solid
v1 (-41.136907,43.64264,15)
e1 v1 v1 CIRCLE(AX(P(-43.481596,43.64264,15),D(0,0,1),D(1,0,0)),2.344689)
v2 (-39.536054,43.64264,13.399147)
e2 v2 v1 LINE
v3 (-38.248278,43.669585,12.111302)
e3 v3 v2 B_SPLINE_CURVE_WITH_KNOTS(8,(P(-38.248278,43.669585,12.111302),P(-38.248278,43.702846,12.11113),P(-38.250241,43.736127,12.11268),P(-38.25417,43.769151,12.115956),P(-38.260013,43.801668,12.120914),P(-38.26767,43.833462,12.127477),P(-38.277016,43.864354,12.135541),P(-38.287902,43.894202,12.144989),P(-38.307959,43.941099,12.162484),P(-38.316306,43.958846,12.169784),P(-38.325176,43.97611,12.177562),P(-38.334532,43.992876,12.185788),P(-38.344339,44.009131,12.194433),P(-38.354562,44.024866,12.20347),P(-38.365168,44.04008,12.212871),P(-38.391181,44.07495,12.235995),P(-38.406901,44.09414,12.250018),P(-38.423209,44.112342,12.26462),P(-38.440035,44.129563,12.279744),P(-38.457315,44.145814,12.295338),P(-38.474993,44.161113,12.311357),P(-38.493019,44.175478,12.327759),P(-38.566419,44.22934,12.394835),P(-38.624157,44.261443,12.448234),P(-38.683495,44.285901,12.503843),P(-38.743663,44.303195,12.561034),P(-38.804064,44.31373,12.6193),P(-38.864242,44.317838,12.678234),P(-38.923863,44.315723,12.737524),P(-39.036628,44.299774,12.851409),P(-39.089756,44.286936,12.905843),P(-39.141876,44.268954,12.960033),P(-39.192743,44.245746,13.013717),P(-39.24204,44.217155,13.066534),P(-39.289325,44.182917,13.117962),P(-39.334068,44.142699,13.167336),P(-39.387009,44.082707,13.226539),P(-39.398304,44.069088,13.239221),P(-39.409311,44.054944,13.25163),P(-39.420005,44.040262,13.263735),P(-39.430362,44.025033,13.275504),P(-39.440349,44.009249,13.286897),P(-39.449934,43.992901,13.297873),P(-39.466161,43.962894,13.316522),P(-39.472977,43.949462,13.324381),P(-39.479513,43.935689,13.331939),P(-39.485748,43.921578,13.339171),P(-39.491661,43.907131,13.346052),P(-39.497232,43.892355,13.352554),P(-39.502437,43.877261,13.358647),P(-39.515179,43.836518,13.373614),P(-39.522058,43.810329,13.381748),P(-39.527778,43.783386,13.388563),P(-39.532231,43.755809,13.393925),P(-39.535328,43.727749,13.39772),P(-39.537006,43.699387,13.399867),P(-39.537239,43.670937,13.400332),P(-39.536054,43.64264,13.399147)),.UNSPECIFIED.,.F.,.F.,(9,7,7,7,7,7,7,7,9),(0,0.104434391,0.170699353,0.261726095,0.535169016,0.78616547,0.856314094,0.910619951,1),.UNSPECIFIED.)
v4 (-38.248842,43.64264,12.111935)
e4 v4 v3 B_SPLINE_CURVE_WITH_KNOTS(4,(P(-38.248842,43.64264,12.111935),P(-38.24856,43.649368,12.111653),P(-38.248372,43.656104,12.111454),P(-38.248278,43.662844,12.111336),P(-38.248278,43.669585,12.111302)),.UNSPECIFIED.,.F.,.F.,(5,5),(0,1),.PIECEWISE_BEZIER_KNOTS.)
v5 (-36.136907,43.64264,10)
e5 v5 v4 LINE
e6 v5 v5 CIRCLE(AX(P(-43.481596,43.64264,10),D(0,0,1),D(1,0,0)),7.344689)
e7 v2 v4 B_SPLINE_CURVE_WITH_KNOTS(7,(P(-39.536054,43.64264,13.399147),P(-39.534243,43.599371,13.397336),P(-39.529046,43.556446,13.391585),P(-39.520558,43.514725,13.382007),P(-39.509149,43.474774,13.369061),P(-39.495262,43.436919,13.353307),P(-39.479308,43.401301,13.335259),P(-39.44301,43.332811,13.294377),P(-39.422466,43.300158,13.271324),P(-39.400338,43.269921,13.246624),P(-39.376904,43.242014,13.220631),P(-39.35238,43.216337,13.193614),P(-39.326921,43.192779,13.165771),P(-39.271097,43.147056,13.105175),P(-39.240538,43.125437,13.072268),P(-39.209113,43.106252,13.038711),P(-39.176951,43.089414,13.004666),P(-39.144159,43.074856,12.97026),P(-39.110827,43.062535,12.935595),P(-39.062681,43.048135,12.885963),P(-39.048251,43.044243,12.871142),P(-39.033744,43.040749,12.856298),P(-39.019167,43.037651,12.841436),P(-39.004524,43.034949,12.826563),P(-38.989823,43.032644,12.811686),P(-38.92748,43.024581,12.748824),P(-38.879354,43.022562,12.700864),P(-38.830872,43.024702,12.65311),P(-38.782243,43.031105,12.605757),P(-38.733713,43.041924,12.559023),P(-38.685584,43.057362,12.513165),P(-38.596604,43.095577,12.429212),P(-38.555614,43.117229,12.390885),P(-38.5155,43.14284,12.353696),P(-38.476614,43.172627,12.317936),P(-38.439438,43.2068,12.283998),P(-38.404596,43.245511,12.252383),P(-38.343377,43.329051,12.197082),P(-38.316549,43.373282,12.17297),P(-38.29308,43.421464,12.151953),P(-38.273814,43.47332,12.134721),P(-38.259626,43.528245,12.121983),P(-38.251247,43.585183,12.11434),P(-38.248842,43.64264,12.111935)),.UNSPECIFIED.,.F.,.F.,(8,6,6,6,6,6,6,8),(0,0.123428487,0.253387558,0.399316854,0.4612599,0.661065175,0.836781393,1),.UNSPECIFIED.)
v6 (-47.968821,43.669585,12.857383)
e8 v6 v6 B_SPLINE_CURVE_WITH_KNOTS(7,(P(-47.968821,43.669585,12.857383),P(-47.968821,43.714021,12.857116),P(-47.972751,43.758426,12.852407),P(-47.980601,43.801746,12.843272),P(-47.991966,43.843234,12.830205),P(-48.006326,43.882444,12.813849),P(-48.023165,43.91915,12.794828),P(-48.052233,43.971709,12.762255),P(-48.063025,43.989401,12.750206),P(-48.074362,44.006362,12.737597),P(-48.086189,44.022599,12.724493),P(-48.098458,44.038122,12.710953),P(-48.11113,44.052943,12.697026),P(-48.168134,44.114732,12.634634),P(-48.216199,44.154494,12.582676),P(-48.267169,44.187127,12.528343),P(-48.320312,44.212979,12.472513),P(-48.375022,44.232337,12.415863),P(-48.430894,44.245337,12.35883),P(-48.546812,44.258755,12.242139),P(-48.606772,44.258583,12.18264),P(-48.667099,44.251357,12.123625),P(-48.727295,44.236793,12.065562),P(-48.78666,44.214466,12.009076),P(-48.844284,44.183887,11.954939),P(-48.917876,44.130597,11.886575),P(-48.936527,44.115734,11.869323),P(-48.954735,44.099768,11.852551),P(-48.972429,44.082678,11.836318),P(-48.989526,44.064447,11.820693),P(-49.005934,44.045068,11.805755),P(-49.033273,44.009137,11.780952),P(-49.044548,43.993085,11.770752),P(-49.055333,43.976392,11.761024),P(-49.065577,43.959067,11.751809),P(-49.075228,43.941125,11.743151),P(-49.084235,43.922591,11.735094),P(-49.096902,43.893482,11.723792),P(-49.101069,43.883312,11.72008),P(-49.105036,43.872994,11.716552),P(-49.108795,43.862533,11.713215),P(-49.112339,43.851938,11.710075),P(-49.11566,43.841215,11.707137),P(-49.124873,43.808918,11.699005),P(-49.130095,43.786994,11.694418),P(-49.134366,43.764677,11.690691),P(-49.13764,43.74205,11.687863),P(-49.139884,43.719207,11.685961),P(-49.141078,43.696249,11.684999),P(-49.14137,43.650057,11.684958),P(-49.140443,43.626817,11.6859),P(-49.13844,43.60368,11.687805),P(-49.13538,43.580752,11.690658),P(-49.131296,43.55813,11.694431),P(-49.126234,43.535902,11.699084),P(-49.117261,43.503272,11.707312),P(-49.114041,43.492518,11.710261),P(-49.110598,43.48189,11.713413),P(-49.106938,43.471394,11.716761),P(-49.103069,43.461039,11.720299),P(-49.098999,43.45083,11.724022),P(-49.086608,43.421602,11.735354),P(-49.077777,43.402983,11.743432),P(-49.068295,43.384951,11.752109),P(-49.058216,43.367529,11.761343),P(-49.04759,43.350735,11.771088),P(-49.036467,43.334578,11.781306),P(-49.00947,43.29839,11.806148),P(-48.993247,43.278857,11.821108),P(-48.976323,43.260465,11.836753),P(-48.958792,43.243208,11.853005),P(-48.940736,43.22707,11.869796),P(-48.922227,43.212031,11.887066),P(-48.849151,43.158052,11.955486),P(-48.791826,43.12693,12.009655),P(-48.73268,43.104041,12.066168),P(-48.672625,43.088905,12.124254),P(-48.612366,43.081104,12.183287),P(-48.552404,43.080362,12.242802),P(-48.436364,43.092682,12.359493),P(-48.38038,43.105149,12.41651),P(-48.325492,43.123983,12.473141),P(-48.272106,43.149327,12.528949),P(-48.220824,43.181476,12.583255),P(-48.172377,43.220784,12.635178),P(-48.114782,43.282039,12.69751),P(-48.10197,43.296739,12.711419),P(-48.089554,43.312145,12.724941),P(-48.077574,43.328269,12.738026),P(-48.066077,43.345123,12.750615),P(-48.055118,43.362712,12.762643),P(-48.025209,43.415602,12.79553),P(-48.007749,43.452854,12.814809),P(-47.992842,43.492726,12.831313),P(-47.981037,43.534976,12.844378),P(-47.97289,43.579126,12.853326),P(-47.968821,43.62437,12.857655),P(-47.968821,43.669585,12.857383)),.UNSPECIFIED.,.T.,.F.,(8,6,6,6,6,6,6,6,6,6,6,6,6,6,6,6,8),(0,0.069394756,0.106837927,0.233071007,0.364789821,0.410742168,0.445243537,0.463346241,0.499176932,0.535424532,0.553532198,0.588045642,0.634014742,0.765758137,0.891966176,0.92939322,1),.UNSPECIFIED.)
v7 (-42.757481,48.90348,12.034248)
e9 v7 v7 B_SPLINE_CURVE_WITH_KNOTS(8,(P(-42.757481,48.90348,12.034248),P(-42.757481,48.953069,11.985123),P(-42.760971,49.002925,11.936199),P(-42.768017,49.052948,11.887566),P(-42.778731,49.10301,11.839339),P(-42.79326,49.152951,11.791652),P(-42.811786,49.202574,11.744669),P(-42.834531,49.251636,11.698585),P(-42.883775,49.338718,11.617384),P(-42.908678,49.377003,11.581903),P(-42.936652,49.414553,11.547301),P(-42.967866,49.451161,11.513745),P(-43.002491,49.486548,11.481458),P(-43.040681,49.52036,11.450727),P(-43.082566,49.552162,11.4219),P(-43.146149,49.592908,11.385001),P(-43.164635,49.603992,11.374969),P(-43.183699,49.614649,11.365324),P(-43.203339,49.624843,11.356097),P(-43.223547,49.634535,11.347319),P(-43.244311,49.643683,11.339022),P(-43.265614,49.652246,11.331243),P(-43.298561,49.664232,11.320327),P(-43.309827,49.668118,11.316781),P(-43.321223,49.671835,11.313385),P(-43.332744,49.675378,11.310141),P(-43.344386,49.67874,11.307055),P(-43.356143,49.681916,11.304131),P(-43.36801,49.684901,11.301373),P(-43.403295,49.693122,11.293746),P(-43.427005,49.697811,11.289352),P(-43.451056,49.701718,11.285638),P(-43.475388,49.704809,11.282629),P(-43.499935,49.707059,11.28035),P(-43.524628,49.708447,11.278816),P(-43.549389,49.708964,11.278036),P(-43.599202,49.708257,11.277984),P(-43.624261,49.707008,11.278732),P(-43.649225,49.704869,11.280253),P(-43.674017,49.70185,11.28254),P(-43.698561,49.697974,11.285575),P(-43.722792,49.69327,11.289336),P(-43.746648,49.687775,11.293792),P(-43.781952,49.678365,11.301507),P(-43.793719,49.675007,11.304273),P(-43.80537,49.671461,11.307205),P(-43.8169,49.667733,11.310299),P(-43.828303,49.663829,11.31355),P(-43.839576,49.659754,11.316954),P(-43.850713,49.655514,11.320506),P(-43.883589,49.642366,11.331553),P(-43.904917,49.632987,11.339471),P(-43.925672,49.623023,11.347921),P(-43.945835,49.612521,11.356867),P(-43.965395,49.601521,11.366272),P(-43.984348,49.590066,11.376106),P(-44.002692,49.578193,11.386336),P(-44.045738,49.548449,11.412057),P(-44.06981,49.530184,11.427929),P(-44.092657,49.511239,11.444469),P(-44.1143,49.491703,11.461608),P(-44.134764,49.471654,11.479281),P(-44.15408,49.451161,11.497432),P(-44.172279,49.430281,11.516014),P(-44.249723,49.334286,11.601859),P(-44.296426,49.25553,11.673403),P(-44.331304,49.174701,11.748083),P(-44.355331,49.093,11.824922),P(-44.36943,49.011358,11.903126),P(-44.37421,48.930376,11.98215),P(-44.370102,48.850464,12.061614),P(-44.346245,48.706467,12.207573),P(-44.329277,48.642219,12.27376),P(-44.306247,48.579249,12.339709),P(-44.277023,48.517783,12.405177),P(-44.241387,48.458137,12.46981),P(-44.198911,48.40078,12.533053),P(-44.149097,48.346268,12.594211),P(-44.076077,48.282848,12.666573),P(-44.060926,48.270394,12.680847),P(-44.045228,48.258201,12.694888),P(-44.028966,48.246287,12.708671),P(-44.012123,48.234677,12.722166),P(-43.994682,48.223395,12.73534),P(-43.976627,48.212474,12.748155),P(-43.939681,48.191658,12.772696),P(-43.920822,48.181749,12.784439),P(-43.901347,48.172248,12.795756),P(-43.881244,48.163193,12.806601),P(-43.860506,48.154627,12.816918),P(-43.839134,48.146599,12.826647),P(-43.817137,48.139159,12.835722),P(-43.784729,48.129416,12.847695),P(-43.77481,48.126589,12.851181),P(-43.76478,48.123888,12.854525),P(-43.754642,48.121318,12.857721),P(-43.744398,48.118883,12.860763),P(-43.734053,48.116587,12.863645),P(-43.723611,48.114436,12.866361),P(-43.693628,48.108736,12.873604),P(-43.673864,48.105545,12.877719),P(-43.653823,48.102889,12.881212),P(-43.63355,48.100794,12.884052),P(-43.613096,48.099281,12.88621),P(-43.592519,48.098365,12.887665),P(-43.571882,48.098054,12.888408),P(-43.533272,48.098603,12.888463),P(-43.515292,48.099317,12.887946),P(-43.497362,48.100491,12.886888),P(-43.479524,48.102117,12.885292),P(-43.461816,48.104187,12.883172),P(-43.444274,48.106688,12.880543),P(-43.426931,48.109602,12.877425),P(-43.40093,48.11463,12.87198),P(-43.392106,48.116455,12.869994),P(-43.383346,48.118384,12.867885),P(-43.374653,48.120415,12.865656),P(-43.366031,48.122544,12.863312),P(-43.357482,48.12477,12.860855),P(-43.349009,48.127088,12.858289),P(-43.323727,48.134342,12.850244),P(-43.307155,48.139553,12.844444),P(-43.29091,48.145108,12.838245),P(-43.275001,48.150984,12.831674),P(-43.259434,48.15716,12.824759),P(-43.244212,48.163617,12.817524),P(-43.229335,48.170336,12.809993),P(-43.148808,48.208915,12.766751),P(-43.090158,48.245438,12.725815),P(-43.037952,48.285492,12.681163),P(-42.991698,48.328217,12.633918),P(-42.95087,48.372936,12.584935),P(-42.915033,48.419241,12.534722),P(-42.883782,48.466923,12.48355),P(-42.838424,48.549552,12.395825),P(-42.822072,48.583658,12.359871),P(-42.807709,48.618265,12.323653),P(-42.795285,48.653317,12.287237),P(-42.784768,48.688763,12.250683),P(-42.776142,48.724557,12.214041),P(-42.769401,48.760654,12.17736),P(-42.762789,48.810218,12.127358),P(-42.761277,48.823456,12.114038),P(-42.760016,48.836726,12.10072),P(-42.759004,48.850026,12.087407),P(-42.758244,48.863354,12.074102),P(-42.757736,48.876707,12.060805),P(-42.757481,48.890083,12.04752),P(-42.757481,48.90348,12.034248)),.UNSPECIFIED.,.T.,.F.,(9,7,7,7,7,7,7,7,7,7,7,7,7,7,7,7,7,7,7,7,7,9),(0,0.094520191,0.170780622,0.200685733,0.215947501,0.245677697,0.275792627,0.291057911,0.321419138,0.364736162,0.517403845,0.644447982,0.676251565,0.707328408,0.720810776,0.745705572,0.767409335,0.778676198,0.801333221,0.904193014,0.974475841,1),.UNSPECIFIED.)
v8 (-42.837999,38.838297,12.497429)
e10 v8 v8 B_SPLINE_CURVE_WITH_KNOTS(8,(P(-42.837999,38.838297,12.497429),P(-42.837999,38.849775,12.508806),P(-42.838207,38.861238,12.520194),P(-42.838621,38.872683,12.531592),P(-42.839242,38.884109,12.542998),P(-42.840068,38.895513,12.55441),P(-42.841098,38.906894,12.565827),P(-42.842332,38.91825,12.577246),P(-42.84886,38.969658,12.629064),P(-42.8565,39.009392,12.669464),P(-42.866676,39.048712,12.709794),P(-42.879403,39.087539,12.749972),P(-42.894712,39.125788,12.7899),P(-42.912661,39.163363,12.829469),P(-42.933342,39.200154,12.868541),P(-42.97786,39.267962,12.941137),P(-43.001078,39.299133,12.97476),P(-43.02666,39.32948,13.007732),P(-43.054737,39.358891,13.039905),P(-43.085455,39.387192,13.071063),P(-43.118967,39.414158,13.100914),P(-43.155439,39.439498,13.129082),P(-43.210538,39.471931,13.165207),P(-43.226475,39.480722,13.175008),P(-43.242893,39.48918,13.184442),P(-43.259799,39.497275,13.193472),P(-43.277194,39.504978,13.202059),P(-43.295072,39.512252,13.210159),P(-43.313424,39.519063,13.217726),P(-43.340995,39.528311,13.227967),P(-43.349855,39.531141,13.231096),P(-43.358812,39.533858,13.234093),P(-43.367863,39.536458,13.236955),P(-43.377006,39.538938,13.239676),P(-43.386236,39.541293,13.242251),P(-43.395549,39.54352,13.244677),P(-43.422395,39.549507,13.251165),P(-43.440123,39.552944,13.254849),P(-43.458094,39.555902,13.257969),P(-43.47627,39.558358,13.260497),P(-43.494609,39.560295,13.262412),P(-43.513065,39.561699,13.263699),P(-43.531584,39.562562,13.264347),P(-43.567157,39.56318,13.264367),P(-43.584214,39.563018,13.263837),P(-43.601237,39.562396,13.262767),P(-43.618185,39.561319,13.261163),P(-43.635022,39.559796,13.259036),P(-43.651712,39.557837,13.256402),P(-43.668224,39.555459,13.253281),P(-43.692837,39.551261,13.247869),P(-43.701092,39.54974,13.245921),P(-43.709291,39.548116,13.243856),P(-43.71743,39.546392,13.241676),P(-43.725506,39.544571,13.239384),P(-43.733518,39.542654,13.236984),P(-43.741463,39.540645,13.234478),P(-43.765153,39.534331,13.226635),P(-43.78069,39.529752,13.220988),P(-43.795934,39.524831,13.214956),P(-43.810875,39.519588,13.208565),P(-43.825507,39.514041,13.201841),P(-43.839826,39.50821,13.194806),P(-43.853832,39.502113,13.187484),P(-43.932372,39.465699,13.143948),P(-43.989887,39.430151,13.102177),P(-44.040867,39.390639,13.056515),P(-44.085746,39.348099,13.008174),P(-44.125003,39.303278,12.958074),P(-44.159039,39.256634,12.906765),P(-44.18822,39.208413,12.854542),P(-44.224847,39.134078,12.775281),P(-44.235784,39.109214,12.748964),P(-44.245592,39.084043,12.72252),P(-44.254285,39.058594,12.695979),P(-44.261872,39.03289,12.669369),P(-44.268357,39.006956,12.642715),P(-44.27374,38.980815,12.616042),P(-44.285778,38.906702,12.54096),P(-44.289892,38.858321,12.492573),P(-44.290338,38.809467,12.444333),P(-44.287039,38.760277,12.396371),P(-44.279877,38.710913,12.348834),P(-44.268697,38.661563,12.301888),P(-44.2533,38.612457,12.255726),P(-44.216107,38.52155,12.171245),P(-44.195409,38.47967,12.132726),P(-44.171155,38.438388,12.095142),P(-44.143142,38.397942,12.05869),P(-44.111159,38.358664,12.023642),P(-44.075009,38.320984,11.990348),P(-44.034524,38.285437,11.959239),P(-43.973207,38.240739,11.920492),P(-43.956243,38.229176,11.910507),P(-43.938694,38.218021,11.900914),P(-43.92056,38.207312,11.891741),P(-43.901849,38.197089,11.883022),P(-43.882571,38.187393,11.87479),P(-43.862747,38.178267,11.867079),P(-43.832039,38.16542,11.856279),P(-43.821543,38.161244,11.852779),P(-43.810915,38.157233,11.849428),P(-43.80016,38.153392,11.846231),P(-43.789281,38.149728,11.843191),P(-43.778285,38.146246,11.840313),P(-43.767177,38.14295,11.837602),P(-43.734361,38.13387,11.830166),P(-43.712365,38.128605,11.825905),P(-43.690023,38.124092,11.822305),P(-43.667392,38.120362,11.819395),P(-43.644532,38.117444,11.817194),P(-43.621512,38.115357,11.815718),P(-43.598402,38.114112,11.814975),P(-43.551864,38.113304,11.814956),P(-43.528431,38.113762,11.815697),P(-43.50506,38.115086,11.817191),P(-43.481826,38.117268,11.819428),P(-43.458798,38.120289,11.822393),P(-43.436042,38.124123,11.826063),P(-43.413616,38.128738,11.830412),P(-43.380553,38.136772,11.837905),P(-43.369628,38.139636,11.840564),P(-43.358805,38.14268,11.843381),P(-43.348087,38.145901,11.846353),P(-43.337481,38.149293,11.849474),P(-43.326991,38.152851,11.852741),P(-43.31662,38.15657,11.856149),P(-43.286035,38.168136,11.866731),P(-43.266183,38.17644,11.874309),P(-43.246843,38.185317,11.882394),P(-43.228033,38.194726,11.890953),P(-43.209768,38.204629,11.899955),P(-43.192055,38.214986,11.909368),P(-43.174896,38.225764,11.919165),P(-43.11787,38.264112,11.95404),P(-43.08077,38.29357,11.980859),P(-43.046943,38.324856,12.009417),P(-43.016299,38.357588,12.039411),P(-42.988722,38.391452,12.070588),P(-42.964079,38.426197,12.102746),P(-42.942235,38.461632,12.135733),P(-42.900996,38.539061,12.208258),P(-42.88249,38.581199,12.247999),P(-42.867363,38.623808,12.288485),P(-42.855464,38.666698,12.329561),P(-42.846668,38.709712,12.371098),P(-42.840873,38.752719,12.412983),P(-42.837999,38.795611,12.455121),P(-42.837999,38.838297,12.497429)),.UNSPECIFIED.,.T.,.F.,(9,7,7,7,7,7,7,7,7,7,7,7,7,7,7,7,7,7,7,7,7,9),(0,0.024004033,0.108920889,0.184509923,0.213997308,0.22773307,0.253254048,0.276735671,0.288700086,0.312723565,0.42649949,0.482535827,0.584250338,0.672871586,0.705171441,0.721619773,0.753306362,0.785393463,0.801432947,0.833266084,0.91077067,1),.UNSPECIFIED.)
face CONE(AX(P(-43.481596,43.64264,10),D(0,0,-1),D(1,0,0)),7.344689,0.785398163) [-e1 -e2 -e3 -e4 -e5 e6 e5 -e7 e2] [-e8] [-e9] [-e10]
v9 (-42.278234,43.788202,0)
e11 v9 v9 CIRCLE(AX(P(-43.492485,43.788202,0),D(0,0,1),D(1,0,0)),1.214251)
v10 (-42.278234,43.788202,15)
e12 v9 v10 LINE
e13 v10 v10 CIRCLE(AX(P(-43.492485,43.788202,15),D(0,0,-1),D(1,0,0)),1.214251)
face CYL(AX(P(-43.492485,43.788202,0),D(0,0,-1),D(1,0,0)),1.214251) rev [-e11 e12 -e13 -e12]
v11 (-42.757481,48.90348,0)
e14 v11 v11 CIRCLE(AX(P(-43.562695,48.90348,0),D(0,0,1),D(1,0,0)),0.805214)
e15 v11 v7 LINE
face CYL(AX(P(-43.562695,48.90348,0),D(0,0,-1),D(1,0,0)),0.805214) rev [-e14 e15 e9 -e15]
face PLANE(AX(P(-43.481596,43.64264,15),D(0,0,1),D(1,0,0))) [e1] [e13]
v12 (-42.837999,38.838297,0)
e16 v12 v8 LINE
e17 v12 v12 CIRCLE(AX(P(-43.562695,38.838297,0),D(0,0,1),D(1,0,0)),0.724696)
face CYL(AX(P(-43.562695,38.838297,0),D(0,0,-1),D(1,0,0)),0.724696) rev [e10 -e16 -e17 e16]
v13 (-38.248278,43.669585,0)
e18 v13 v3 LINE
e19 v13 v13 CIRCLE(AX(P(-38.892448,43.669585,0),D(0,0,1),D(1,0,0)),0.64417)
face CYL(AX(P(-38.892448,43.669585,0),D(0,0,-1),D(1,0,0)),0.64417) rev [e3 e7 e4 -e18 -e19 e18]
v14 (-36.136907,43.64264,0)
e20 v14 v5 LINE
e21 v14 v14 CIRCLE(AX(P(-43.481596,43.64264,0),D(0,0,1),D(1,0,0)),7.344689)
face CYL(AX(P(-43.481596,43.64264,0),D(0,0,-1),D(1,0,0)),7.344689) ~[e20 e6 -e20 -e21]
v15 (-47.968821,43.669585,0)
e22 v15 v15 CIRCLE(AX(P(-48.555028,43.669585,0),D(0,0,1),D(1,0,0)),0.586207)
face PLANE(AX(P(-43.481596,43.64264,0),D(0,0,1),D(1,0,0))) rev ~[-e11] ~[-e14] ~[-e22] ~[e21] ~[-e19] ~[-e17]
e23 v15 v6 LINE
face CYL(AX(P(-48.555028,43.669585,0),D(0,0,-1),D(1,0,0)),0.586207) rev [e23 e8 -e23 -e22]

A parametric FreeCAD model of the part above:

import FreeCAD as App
import Part
import Sketcher

V = App.Vector
Q = App.Units.Quantity


def edges_at(feature, points):
    """Names of the edges that pass closest to the given points."""
    edges = feature.Shape.Edges
    near = lambda p: min(range(len(edges)), key=lambda i: edges[i].distToShape(Part.Vertex(*p))[0])
    return sorted({f"Edge{near(p) + 1}" for p in points})

doc = App.newDocument("Part")
body = doc.addObject("PartDesign::Body", "Body")

# Sketch on XY plane
sketch1 = body.newObject("Sketcher::SketchObject", "Sketch")
sketch1.AttachmentSupport = (doc.getObject("XY_Plane"), [""])
sketch1.MapMode = "FlatFace"
sketch1.addGeometry(Part.Circle(V(-43.481596, 43.64264, 0), V(0, 0, 1), 7.344689), False)
sketch1.addConstraint(Sketcher.Constraint("Diameter", 0, Q("14.689378 mm")))
sketch1.addConstraint(Sketcher.Constraint("DistanceY", -1, 1, 0, 3, Q("43.64264 mm")))
sketch1.addConstraint(Sketcher.Constraint("DistanceX", 0, 3, -1, 1, Q("43.481596 mm")))
pad1 = body.newObject("PartDesign::Pad", "Pad")
pad1.Profile = sketch1
pad1.Length = 15
doc.recompute()

chamfer = body.newObject("PartDesign::Chamfer", "Chamfer")
chamfer.Base = (pad1, edges_at(pad1, [(-50.826, 43.643, 15)]))
chamfer.Size = 5

# Sketch on XY plane
sketch2 = body.newObject("Sketcher::SketchObject", "Sketch001")
sketch2.AttachmentSupport = (doc.getObject("XY_Plane"), [""])
sketch2.MapMode = "FlatFace"
sketch2.addGeometry(Part.Circle(V(-43.562695, 48.90348, 0), V(0, 0, 1), 0.805214), False)
sketch2.addGeometry(Part.Circle(V(-43.562695, 38.838297, 0), V(0, 0, 1), 0.724696), False)
sketch2.addGeometry(Part.Circle(V(-38.892448, 43.669585, 0), V(0, 0, 1), 0.64417), False)
sketch2.addGeometry(Part.Circle(V(-48.555028, 43.669585, 0), V(0, 0, 1), 0.586207), False)
sketch2.addConstraint(Sketcher.Constraint("Horizontal", 2, 3, 3, 3))
sketch2.addConstraint(Sketcher.Constraint("Vertical", 0, 3, 1, 3))
sketch2.addConstraint(Sketcher.Constraint("Diameter", 2, Q("1.28834 mm")))
sketch2.addConstraint(Sketcher.Constraint("Diameter", 0, Q("1.610428 mm")))
sketch2.addConstraint(Sketcher.Constraint("Diameter", 1, Q("1.449392 mm")))
sketch2.addConstraint(Sketcher.Constraint("Diameter", 3, Q("1.172414 mm")))
sketch2.addConstraint(Sketcher.Constraint("DistanceY", -1, 1, 0, 3, Q("48.90348 mm")))
sketch2.addConstraint(Sketcher.Constraint("DistanceX", 2, 3, -1, 1, Q("38.892448 mm")))
sketch2.addConstraint(Sketcher.Constraint("DistanceY", 1, 3, 2, 3, Q("4.831288 mm")))
sketch2.addConstraint(Sketcher.Constraint("DistanceX", 3, 3, 2, 3, Q("9.66258 mm")))
sketch2.addConstraint(Sketcher.Constraint("DistanceX", 0, 3, -1, 1, Q("43.562695 mm")))
sketch2.addConstraint(Sketcher.Constraint("DistanceY", -1, 1, 1, 3, Q("38.838297 mm")))
pocket1 = body.newObject("PartDesign::Pocket", "Pocket")
pocket1.Profile = sketch2
pocket1.Length = 25
pocket1.Reversed = True

# Sketch on XY plane
sketch3 = body.newObject("Sketcher::SketchObject", "Sketch002")
sketch3.AttachmentSupport = (doc.getObject("XY_Plane"), [""])
sketch3.MapMode = "FlatFace"
sketch3.addGeometry(Part.Circle(V(-43.492485, 43.788202, 0), V(0, 0, 1), 1.214251), False)
sketch3.addConstraint(Sketcher.Constraint("Diameter", 0, Q("2.428502 mm")))
sketch3.addConstraint(Sketcher.Constraint("DistanceY", -1, 1, 0, 3, Q("43.788202 mm")))
sketch3.addConstraint(Sketcher.Constraint("DistanceX", 0, 3, -1, 1, Q("43.492485 mm")))
pocket2 = body.newObject("PartDesign::Pocket", "Pocket001")
pocket2.Profile = sketch3
pocket2.Length = 25
pocket2.Reversed = True

doc.recompute()
